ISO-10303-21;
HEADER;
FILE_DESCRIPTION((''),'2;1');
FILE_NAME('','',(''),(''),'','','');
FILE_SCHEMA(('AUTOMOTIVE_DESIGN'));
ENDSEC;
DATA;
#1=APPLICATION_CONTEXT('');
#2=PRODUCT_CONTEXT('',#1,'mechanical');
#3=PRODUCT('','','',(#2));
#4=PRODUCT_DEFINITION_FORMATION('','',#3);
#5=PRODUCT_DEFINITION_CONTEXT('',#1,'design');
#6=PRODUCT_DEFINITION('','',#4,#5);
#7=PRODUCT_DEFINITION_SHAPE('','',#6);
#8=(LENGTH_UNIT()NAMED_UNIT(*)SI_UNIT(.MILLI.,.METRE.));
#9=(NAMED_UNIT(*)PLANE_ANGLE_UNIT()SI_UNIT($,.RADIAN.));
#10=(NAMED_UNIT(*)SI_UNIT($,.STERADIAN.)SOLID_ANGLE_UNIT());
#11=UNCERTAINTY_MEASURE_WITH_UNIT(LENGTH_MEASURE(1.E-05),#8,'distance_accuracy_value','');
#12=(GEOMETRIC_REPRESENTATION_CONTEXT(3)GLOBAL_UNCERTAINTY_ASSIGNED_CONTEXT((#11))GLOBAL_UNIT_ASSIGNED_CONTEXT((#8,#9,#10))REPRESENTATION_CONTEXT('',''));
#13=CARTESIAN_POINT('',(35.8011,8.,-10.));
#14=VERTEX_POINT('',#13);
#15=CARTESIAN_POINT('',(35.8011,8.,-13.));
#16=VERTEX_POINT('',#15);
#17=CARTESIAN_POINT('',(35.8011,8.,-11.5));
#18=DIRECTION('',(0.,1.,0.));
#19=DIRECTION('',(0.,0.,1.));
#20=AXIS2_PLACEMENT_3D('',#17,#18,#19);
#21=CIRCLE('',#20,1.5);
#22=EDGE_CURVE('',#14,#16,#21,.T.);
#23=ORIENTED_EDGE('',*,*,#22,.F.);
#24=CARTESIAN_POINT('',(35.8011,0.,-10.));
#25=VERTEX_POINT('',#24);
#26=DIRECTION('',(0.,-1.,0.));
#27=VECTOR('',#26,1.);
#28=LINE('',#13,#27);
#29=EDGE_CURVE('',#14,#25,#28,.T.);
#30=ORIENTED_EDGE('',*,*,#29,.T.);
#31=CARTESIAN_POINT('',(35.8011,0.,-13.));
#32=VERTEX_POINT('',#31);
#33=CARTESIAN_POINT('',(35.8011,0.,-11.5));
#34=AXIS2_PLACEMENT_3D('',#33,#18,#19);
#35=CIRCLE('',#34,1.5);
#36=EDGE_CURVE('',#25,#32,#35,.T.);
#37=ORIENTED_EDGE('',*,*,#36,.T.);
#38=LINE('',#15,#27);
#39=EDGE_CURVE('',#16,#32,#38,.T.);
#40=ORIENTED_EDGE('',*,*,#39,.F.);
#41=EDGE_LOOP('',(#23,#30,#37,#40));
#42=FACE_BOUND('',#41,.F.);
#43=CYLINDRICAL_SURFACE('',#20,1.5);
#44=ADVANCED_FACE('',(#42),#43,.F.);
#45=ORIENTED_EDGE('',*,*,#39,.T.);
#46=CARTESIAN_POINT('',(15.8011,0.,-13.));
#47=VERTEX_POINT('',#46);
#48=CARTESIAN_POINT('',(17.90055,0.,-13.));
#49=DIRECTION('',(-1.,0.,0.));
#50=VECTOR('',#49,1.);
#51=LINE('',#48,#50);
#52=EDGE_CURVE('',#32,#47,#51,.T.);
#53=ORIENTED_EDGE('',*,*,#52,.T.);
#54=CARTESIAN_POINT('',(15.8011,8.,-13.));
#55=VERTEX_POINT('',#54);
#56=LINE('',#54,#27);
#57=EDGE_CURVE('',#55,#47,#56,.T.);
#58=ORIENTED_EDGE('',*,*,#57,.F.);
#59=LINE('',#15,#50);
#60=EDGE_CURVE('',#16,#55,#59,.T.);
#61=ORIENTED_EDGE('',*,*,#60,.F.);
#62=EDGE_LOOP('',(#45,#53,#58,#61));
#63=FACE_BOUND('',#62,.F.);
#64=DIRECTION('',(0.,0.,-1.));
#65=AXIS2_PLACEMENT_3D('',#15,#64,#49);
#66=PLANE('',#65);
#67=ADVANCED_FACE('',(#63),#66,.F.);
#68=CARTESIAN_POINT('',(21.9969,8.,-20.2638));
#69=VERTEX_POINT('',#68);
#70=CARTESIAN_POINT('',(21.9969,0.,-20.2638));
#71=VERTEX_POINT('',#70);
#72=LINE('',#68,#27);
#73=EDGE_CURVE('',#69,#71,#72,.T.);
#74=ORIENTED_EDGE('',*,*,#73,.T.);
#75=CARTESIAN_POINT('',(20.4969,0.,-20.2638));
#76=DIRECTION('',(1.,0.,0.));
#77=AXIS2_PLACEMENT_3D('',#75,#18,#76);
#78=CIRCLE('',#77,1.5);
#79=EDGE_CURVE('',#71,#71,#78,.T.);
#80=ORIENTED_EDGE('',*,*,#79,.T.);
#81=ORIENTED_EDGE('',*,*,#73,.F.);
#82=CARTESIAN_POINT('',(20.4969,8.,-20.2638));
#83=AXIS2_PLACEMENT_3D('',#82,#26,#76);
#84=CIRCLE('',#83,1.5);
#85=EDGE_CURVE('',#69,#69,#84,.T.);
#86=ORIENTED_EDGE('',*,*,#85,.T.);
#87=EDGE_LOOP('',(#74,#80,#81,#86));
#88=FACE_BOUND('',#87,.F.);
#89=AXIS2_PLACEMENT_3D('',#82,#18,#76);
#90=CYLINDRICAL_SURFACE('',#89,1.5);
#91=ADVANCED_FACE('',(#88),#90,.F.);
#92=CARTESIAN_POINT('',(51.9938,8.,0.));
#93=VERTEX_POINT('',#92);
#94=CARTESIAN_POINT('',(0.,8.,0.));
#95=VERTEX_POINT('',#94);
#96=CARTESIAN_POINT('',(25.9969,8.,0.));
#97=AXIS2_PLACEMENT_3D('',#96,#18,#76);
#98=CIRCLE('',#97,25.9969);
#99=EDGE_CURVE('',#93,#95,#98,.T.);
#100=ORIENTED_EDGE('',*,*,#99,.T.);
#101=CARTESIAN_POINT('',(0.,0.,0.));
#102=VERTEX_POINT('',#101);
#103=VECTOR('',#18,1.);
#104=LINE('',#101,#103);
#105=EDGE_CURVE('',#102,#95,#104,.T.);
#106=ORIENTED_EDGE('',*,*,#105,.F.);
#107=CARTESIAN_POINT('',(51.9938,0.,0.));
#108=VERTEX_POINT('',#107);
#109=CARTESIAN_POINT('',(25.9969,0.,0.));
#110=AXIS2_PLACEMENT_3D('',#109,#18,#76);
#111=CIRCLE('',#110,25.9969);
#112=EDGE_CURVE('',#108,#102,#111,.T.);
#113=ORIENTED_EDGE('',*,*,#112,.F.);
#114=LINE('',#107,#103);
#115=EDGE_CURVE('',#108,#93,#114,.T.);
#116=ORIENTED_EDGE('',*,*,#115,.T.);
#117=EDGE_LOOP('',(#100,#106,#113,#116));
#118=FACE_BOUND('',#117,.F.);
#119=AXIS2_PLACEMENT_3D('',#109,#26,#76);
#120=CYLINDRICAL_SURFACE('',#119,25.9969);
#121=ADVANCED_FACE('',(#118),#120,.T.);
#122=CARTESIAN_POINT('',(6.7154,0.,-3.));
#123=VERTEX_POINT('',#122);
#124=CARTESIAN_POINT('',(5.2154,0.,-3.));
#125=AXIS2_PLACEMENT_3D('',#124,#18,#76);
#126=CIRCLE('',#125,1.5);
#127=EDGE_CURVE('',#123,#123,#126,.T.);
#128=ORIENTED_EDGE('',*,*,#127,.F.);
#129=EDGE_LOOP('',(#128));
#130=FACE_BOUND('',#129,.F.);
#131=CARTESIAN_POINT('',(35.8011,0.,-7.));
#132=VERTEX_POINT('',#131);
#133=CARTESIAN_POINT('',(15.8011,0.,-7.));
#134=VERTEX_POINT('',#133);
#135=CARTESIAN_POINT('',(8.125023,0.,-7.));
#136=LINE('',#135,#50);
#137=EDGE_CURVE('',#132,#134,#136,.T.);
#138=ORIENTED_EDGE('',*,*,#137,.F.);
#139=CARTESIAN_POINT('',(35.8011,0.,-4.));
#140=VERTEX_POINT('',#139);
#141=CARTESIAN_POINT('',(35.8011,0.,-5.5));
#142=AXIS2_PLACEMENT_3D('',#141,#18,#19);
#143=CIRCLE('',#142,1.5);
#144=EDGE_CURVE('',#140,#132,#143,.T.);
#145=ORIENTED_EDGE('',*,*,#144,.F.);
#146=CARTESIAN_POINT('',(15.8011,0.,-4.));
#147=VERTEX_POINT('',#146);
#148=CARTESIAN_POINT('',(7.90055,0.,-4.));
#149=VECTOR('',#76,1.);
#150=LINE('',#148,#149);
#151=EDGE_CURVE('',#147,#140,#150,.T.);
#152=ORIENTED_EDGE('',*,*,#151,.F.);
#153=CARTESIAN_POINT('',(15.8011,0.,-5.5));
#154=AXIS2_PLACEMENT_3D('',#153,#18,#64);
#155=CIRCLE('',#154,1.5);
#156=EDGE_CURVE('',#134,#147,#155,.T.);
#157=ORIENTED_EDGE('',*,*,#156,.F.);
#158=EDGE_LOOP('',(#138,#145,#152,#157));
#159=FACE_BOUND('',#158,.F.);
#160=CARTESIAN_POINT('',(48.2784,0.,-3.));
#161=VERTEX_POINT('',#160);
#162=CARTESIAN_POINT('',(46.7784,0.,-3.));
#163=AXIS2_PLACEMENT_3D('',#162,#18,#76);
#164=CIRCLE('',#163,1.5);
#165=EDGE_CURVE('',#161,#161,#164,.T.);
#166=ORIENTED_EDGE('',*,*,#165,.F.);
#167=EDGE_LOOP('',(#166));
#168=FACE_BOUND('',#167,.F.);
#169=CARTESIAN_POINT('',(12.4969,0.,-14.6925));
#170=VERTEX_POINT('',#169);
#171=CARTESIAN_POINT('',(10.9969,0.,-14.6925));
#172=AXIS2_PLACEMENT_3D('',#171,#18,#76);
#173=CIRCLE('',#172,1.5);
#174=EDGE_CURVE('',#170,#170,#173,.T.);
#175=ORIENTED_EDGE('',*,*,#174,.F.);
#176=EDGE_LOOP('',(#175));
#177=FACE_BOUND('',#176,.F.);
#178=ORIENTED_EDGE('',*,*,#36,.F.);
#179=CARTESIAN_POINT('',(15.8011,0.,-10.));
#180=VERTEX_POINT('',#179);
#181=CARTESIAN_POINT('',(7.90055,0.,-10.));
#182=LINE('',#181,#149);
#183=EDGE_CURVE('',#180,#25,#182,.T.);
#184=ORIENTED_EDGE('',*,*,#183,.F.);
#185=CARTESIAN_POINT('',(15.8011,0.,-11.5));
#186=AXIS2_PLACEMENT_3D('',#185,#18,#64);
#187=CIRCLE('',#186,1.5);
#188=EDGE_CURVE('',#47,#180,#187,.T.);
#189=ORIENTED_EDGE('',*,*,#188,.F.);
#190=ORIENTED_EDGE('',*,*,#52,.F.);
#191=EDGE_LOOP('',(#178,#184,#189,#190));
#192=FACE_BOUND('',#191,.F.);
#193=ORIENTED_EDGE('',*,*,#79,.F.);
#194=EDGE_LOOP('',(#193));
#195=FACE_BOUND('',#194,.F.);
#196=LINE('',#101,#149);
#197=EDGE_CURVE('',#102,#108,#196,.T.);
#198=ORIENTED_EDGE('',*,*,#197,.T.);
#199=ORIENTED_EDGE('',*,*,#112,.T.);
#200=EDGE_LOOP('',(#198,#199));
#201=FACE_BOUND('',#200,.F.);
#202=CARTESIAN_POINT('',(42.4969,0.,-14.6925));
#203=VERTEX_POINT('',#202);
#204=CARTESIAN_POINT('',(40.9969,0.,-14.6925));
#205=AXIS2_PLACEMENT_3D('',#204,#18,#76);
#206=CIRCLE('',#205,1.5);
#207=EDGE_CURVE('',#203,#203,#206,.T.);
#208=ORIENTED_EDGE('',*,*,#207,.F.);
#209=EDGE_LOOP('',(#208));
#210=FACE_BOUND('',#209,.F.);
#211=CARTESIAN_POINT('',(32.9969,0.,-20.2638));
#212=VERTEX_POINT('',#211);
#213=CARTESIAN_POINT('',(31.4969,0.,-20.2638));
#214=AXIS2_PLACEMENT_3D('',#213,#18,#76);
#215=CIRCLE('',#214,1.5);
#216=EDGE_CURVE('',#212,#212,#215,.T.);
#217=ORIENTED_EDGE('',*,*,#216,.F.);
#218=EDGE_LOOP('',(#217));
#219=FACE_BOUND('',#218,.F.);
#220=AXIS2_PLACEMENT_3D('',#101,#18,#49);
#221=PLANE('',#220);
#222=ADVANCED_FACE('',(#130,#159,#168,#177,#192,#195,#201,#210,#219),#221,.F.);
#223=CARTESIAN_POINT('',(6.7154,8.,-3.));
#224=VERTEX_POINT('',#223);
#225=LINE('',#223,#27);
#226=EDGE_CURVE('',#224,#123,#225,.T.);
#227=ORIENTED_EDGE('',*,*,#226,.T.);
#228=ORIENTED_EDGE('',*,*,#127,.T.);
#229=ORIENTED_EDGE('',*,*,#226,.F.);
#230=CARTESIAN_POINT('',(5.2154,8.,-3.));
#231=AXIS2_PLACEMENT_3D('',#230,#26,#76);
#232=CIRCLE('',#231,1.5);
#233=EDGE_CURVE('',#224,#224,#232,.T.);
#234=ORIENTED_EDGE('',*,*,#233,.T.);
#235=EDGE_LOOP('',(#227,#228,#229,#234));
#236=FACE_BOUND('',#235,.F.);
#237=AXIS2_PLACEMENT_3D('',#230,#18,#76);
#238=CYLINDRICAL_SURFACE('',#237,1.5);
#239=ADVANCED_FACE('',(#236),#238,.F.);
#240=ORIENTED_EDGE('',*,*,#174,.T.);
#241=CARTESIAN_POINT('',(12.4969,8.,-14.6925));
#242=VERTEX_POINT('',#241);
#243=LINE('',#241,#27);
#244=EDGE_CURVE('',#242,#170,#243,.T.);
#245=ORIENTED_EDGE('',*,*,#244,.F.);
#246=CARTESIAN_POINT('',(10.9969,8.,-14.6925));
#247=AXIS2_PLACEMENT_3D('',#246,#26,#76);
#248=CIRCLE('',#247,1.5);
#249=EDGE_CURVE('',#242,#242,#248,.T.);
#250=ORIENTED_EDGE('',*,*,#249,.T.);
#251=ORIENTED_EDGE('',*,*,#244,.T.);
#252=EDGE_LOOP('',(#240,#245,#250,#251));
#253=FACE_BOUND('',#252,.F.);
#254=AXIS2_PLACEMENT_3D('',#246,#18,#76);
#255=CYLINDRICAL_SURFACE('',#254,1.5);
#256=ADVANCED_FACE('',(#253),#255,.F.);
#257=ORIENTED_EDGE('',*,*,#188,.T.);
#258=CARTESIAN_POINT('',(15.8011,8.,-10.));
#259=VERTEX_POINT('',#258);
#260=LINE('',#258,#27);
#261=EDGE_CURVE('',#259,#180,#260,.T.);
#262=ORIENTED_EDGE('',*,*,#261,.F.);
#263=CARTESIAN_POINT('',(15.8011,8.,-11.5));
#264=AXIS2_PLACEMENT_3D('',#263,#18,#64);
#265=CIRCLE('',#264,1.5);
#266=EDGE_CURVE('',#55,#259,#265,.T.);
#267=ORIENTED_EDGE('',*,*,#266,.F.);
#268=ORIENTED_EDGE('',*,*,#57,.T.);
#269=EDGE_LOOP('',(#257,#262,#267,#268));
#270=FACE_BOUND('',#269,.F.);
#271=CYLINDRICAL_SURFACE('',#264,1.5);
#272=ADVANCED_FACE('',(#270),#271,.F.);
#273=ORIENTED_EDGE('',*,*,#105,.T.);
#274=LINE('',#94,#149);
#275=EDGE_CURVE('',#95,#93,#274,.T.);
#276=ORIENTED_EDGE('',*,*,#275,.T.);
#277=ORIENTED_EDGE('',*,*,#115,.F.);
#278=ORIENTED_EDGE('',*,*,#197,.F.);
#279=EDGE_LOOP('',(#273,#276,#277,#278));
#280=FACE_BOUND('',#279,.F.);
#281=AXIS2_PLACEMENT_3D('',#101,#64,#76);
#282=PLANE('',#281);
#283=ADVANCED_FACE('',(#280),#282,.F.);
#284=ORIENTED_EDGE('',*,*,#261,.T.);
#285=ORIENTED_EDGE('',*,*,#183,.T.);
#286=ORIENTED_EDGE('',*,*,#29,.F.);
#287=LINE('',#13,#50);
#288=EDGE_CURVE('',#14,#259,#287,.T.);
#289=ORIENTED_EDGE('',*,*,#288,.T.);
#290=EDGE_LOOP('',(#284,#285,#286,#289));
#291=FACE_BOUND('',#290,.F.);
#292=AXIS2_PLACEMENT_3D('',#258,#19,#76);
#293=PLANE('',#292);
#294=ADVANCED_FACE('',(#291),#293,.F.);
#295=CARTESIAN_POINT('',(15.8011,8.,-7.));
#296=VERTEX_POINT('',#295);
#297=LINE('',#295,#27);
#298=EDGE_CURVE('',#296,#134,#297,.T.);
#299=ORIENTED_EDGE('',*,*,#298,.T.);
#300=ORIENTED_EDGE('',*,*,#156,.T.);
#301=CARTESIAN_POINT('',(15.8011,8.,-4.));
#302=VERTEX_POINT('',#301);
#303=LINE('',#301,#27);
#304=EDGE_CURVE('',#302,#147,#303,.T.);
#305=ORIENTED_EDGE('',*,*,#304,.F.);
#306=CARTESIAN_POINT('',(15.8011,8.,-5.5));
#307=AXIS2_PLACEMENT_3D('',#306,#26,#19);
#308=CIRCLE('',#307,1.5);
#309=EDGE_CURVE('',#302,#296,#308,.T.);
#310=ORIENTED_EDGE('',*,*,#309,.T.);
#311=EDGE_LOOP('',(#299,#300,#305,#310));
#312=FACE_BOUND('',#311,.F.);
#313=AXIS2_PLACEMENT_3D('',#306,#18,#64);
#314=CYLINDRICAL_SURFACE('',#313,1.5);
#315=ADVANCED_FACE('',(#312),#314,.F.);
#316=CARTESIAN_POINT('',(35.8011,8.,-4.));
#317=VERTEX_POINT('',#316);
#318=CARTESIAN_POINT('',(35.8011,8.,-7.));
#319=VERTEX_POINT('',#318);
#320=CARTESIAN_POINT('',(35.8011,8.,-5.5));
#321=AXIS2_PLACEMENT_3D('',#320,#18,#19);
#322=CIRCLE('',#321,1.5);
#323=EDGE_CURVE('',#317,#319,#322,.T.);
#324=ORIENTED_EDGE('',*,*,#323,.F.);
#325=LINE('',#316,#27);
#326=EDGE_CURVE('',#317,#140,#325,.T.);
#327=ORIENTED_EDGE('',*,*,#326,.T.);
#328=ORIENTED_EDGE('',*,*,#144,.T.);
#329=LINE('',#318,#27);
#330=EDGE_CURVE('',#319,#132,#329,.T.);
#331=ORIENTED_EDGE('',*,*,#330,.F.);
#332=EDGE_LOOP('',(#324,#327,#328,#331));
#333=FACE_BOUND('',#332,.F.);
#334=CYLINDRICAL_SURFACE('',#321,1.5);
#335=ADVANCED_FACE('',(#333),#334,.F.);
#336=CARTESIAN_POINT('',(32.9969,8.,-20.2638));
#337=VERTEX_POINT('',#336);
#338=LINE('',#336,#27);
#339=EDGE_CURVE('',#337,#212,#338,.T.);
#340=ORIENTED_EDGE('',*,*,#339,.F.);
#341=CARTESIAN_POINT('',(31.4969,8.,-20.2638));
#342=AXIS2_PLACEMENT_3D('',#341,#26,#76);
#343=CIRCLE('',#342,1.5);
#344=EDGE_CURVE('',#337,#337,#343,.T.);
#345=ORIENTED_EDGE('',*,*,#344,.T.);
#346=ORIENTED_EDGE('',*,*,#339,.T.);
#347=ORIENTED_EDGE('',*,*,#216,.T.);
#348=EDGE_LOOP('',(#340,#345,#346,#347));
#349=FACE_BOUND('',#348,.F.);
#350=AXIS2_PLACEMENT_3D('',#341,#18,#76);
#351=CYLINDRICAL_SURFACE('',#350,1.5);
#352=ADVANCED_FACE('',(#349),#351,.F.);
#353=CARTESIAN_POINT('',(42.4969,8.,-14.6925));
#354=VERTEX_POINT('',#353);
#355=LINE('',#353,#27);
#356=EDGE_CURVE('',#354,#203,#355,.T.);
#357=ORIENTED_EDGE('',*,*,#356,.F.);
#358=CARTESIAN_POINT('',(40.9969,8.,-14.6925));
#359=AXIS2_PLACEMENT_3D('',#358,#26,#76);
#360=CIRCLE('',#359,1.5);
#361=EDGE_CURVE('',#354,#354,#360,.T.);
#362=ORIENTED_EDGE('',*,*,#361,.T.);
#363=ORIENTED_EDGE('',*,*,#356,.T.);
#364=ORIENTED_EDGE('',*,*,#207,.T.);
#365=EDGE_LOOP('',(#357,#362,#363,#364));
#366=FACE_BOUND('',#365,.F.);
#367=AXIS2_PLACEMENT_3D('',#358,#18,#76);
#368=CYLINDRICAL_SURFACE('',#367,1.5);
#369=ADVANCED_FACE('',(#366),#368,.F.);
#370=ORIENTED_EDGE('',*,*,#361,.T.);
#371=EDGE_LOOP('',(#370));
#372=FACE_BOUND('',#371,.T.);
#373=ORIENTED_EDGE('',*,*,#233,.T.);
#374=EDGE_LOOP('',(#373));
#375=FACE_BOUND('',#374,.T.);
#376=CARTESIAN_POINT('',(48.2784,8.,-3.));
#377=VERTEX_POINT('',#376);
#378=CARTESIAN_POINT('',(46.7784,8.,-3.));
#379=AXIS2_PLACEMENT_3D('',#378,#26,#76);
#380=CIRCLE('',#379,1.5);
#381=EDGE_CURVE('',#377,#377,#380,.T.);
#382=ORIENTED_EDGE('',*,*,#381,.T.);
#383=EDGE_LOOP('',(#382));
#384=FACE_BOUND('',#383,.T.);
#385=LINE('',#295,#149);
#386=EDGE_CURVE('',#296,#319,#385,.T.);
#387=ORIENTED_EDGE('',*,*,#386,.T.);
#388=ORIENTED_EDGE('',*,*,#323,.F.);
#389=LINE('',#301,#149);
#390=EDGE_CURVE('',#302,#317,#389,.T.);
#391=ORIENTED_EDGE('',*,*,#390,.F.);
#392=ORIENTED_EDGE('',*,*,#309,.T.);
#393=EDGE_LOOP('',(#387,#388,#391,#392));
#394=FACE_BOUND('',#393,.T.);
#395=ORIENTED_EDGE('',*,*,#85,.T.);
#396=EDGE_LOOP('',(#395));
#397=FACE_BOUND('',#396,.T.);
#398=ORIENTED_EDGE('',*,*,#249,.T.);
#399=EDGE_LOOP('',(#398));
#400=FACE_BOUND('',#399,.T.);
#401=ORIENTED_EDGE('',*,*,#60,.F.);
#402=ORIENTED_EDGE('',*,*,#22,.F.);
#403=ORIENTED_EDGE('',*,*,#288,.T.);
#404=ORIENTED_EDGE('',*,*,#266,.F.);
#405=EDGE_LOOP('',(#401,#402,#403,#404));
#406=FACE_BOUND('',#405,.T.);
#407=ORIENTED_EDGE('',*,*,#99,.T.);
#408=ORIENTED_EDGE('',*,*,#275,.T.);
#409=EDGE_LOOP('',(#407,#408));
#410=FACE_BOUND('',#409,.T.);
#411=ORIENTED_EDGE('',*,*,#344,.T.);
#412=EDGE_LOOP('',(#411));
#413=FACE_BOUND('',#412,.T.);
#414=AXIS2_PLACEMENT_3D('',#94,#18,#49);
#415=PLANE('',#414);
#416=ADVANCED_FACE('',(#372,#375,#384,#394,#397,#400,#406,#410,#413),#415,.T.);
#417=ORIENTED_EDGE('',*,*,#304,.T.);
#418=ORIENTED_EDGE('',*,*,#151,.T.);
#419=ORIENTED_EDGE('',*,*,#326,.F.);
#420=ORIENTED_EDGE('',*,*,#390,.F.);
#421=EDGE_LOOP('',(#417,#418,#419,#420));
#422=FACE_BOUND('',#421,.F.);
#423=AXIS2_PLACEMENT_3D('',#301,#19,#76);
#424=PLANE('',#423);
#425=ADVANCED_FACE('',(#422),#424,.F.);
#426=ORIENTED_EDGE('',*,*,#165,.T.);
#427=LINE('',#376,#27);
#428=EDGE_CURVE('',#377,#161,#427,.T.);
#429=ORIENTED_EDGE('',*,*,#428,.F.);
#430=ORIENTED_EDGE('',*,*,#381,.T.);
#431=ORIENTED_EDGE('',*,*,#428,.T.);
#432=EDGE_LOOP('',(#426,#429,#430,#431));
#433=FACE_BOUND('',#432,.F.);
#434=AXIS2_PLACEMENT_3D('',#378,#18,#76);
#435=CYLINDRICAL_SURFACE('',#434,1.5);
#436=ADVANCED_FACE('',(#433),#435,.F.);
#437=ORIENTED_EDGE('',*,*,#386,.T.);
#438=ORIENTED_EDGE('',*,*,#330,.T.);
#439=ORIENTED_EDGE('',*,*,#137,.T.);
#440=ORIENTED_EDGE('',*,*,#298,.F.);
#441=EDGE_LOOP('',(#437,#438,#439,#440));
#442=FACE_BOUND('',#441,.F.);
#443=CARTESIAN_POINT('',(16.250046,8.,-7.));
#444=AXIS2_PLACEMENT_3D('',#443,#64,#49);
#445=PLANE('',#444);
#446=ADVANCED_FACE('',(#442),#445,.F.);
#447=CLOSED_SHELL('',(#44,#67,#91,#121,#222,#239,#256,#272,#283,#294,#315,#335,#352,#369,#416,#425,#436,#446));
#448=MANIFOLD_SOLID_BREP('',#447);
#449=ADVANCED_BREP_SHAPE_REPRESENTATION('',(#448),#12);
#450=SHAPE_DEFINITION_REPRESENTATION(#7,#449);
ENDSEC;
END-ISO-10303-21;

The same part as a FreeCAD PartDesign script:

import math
import FreeCAD as App
import Part
import Sketcher
from FreeCAD import Vector
Q = App.Units.Quantity

doc = App.newDocument("Part")
params = doc.addObject("Spreadsheet::Sheet", "Params")
for row, (alias, value) in enumerate([
    ("pad1_length", "8 mm"),
    ("sketch2_diameter", "3 mm"),
    ("sketch2_width", "20 mm"),
    ("pocket1_length", "15 mm"),
], start=1):
    params.set(f"A{row}", alias)
    params.set(f"B{row}", "=" + value)
    params.setAlias(f"B{row}", alias)

body = doc.addObject("PartDesign::Body", "Body")

sketch1 = body.newObject("Sketcher::SketchObject", "Sketch")
sketch1.AttachmentSupport = (doc.getObject("XZ_Plane"), [""])
sketch1.MapMode = "FlatFace"
sketch1.addGeometry([
    Part.ArcOfCircle(Part.Circle(Vector(25.9969, 0, 0), Vector(0, 0, 1), 25.9969), math.radians(180), math.radians(360)),
    Part.LineSegment(Vector(0, 0, 0), Vector(51.9938, 0, 0)),
], False)
sketch1.addConstraint([
    Sketcher.Constraint("Coincident", 0, 1, 1, 1),
    Sketcher.Constraint("Coincident", 1, 2, 0, 2),
    Sketcher.Constraint("Horizontal", 1),
    Sketcher.Constraint("Coincident", 0, 1, -1, 1),
    Sketcher.Constraint("PointOnObject", 0, 3, -1),
    Sketcher.Constraint("Radius", 0, Q("25.997 mm")),
])
pad1 = body.newObject("PartDesign::Pad", "Pad")
pad1.Profile = sketch1
pad1.setExpression("Length", "Params.pad1_length")
pad1.Reversed = True

sketch2 = body.newObject("Sketcher::SketchObject", "Sketch001")
sketch2.AttachmentSupport = (doc.getObject("XZ_Plane"), [""])
sketch2.MapMode = "FlatFace"
sketch2.AttachmentOffset = App.Placement(Vector(0, 0, -8), App.Rotation())
sketch2.addGeometry([
    Part.Circle(Vector(5.2154, -3, 0), Vector(0, 0, 1), 1.5),
    Part.Circle(Vector(10.9969, -14.6925, 0), Vector(0, 0, 1), 1.5),
    Part.ArcOfCircle(Part.Circle(Vector(15.8011, -5.5, 0), Vector(0, 0, 1), 1.5), math.radians(90), math.radians(270)),
    Part.LineSegment(Vector(15.8011, -4, 0), Vector(35.8011, -4, 0)),
    Part.ArcOfCircle(Part.Circle(Vector(35.8011, -5.5, 0), Vector(0, 0, 1), 1.5), math.radians(-90), math.radians(90)),
    Part.LineSegment(Vector(35.8011, -7, 0), Vector(15.8011, -7, 0)),
    Part.Circle(Vector(46.7784, -3, 0), Vector(0, 0, 1), 1.5),
    Part.Circle(Vector(20.4969, -20.2638, 0), Vector(0, 0, 1), 1.5),
    Part.LineSegment(Vector(15.8011, -10, 0), Vector(35.8011, -10, 0)),
    Part.ArcOfCircle(Part.Circle(Vector(35.8011, -11.5, 0), Vector(0, 0, 1), 1.5), math.radians(-90), math.radians(90)),
    Part.LineSegment(Vector(35.8011, -13, 0), Vector(15.8011, -13, 0)),
    Part.ArcOfCircle(Part.Circle(Vector(15.8011, -11.5, 0), Vector(0, 0, 1), 1.5), math.radians(90), math.radians(270)),
    Part.Circle(Vector(40.9969, -14.6925, 0), Vector(0, 0, 1), 1.5),
    Part.Circle(Vector(31.4969, -20.2638, 0), Vector(0, 0, 1), 1.5),
], False)
sketch2.addConstraint([
    Sketcher.Constraint("Tangent", 2, 1, 3, 1),
    Sketcher.Constraint("Tangent", 3, 2, 4, 2),
    Sketcher.Constraint("Tangent", 4, 1, 5, 1),
    Sketcher.Constraint("Tangent", 5, 2, 2, 2),
    Sketcher.Constraint("Tangent", 8, 2, 9, 2),
    Sketcher.Constraint("Tangent", 9, 1, 10, 1),
    Sketcher.Constraint("Tangent", 10, 2, 11, 2),
    Sketcher.Constraint("Tangent", 11, 1, 8, 1),
    Sketcher.Constraint("Horizontal", 3),
    Sketcher.Constraint("Horizontal", 5),
    Sketcher.Constraint("Horizontal", 8),
    Sketcher.Constraint("Horizontal", 10),
    Sketcher.Constraint("Equal", 0, 1),
    Sketcher.Constraint("Equal", 1, 2),
    Sketcher.Constraint("Equal", 4, 6),
    Sketcher.Constraint("Equal", 6, 7),
    Sketcher.Constraint("Equal", 7, 9),
    Sketcher.Constraint("Equal", 11, 12),
    Sketcher.Constraint("Equal", 12, 13),
    Sketcher.Constraint("Horizontal", 0, 3, 6, 3),
    Sketcher.Constraint("Horizontal", 1, 3, 12, 3),
    Sketcher.Constraint("Horizontal", 7, 3, 13, 3),
    Sketcher.Constraint("Vertical", 4, 3, 9, 3),
    Sketcher.Constraint("Vertical", 2, 3, 11, 3),
    Sketcher.Constraint("Diameter", 0, Q("3 mm")),
    Sketcher.Constraint("DistanceX", 3, 1, 3, 2, Q("20 mm")),
    Sketcher.Constraint("DistanceY", 0, 3, -1, 1, Q("3 mm")),
    Sketcher.Constraint("DistanceY", 2, 1, -1, 1, Q("4 mm")),
    Sketcher.Constraint("DistanceX", 7, 3, 13, 3, Q("11 mm")),
    Sketcher.Constraint("DistanceY", 8, 2, 4, 1, Q("3 mm")),
    Sketcher.Constraint("DistanceX", 1, 3, 7, 3, Q("9.5 mm")),
    Sketcher.Constraint("DistanceX", 7, 3, 12, 3, Q("20.5 mm")),
    Sketcher.Constraint("DistanceX", -1, 1, 1, 3, Q("10.997 mm")),
    Sketcher.Constraint("DistanceX", -1, 1, 2, 3, Q("15.801 mm")),
    Sketcher.Constraint("DistanceX", 0, 3, 6, 3, Q("41.563 mm")),
    Sketcher.Constraint("DistanceX", -1, 1, 0, 3, Q("5.2154 mm")),
    Sketcher.Constraint("DistanceY", 1, 3, -1, 1, Q("14.6925 mm")),
    Sketcher.Constraint("DistanceY", 7, 3, -1, 1, Q("20.2638 mm")),
])
sketch2.setExpression("Constraints[24]", "Params.sketch2_diameter")
sketch2.setExpression("Constraints[25]", "Params.sketch2_width")
pocket1 = body.newObject("PartDesign::Pocket", "Pocket")
pocket1.Profile = sketch2
pocket1.setExpression("Length", "Params.pocket1_length")
pocket1.Reversed = True

doc.recompute()
